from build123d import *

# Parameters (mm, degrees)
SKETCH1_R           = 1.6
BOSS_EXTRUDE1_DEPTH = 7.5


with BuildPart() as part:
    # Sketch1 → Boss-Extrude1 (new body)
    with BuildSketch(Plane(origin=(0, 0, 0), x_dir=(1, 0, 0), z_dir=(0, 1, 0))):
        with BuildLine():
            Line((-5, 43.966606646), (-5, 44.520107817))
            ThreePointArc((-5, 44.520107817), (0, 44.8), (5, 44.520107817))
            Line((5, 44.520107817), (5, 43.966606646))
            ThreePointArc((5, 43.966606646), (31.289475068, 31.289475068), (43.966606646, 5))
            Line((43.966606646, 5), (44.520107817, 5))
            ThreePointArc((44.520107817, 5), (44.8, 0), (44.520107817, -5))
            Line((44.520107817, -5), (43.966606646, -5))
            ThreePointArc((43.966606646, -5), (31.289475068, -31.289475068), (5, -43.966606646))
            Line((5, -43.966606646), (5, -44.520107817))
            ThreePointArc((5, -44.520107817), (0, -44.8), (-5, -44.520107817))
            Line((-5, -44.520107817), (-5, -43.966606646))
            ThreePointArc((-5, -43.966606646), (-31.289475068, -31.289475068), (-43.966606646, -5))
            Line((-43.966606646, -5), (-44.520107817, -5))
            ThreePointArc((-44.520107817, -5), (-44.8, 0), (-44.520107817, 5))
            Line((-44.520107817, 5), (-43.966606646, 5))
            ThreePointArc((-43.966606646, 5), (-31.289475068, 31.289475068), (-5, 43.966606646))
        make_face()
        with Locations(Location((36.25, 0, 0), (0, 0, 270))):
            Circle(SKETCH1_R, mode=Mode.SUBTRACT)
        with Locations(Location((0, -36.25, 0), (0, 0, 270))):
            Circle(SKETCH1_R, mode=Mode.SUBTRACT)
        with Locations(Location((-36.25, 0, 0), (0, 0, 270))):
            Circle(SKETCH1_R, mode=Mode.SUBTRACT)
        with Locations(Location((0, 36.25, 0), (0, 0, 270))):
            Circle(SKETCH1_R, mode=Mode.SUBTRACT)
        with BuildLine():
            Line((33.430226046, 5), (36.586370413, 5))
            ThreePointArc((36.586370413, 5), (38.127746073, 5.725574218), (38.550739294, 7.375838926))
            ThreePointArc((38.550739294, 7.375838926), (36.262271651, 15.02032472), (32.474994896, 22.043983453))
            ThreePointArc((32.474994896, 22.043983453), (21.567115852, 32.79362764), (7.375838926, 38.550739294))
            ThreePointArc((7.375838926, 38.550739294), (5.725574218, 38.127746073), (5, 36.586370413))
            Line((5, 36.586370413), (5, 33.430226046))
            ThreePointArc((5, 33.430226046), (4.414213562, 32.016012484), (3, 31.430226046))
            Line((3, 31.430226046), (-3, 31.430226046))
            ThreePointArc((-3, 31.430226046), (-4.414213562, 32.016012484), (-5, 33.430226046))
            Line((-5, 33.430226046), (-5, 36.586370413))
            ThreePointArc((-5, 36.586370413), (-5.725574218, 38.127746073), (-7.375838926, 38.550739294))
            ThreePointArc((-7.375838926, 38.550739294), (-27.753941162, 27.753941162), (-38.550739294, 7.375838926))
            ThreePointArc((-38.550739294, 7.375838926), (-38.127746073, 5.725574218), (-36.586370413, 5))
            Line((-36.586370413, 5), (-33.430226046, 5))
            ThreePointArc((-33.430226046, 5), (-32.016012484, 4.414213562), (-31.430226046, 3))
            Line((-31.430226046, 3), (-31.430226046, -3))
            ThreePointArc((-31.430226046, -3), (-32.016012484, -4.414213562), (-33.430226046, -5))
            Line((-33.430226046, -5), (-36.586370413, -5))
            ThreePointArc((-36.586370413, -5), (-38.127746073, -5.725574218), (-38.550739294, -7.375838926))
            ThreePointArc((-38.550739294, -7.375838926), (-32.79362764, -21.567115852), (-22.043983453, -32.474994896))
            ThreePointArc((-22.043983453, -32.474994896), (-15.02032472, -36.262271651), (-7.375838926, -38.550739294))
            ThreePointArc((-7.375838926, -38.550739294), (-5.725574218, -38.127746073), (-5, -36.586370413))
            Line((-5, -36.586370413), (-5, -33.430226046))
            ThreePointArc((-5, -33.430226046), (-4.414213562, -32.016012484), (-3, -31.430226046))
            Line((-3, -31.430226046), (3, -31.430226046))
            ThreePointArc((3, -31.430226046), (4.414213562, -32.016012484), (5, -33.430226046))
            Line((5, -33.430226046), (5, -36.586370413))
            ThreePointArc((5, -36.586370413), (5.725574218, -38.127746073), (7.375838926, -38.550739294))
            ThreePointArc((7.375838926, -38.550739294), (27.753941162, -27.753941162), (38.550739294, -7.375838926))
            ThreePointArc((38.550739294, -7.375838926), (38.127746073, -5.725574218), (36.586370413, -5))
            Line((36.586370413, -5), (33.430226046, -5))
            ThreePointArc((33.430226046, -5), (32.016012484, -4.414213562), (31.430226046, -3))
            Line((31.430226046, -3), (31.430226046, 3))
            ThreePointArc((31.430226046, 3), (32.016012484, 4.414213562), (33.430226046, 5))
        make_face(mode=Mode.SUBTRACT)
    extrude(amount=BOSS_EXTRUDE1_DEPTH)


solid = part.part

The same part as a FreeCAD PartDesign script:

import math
import FreeCAD as App
import Part
import Sketcher

V = App.Vector

doc = App.newDocument("Part")
body = doc.addObject("PartDesign::Body", "Body")

sketch1 = doc.addObject("Sketcher::SketchObject", "Sketch")
body.addObject(sketch1)
sketch1.AttachmentSupport = (doc.XZ_Plane, [""])
sketch1.MapMode = "FlatFace"
sketch1.addGeometry(Part.LineSegment(V(-5, -44.5, 0), V(-5, -44, 0)), False)
sketch1.addGeometry(Part.ArcOfCircle(Part.Circle(V(0, 0, 0), V(0, 0, 1), 44.2), math.radians(-174), math.radians(-96)), False)
sketch1.addGeometry(Part.LineSegment(V(-44, -5, 0), V(-44.5, -5, 0)), False)
sketch1.addGeometry(Part.ArcOfCircle(Part.Circle(V(0, 0, 0), V(0, 0, 1), 44.8), math.radians(173.59), math.radians(186.41)), False)
sketch1.addGeometry(Part.LineSegment(V(-44.5, 5, 0), V(-44, 5, 0)), False)
sketch1.addGeometry(Part.ArcOfCircle(Part.Circle(V(0, 0, 0), V(0, 0, 1), 44.2), math.radians(96), math.radians(174)), False)
sketch1.addGeometry(Part.LineSegment(V(-5, 44, 0), V(-5, 44.5, 0)), False)
sketch1.addGeometry(Part.ArcOfCircle(Part.Circle(V(0, 0, 0), V(0, 0, 1), 44.8), math.radians(83.59), math.radians(96.41)), False)
sketch1.addGeometry(Part.LineSegment(V(5, 44.5, 0), V(5, 44, 0)), False)
sketch1.addGeometry(Part.ArcOfCircle(Part.Circle(V(0, 0, 0), V(0, 0, 1), 44.2), math.radians(6), math.radians(84)), False)
sketch1.addGeometry(Part.LineSegment(V(44, 5, 0), V(44.5, 5, 0)), False)
sketch1.addGeometry(Part.ArcOfCircle(Part.Circle(V(0, 0, 0), V(0, 0, 1), 44.8), math.radians(-6.41), math.radians(6.41)), False)
sketch1.addGeometry(Part.LineSegment(V(44.5, -5, 0), V(44, -5, 0)), False)
sketch1.addGeometry(Part.ArcOfCircle(Part.Circle(V(0, 0, 0), V(0, 0, 1), 44.2), math.radians(-84), math.radians(-6)), False)
sketch1.addGeometry(Part.LineSegment(V(5, -44, 0), V(5, -44.5, 0)), False)
sketch1.addGeometry(Part.ArcOfCircle(Part.Circle(V(0, 0, 0), V(0, 0, 1), 44.8), math.radians(-96.41), math.radians(-83.59)), False)
sketch1.addGeometry(Part.Circle(V(0, 36.2, 0), V(0, 0, 1), 1.6), False)
sketch1.addGeometry(Part.Circle(V(36.2, 0, 0), V(0, 0, 1), 1.6), False)
sketch1.addGeometry(Part.ArcOfCircle(Part.Circle(V(33.4, -3, 0), V(0, 0, 1), 2), math.radians(-180), math.radians(-90)), False)
sketch1.addGeometry(Part.LineSegment(V(31.4, -3, 0), V(31.4, 3, 0)), False)
sketch1.addGeometry(Part.ArcOfCircle(Part.Circle(V(33.4, 3, 0), V(0, 0, 1), 2), math.radians(90), math.radians(180)), False)
sketch1.addGeometry(Part.LineSegment(V(33.4, 5, 0), V(36.6, 5, 0)), False)
sketch1.addGeometry(Part.ArcOfCircle(Part.Circle(V(36.6, 7, 0), V(0, 0, 1), 2), math.radians(-90), math.radians(11)), False)
sketch1.addGeometry(Part.ArcOfCircle(Part.Circle(V(0, 0, 0), V(0, 0, 1), 39.2), math.radians(11), math.radians(79)), False)
sketch1.addGeometry(Part.ArcOfCircle(Part.Circle(V(7, 36.6, 0), V(0, 0, 1), 2), math.radians(79), math.radians(180)), False)
sketch1.addGeometry(Part.LineSegment(V(5, 36.6, 0), V(5, 33.4, 0)), False)
sketch1.addGeometry(Part.ArcOfCircle(Part.Circle(V(3, 33.4, 0), V(0, 0, 1), 2), math.radians(-90), math.radians(0)), False)
sketch1.addGeometry(Part.LineSegment(V(3, 31.4, 0), V(-3, 31.4, 0)), False)
sketch1.addGeometry(Part.ArcOfCircle(Part.Circle(V(-3, 33.4, 0), V(0, 0, 1), 2), math.radians(-180), math.radians(-90)), False)
sketch1.addGeometry(Part.LineSegment(V(-5, 33.4, 0), V(-5, 36.6, 0)), False)
sketch1.addGeometry(Part.ArcOfCircle(Part.Circle(V(-7, 36.6, 0), V(0, 0, 1), 2), math.radians(0), math.radians(101)), False)
sketch1.addGeometry(Part.ArcOfCircle(Part.Circle(V(0, 0, 0), V(0, 0, 1), 39.2), math.radians(101), math.radians(124)), False)
sketch1.addGeometry(Part.ArcOfCircle(Part.Circle(V(0, 0, 0), V(0, 0, 1), 39.3), math.radians(124), math.radians(169)), False)
sketch1.addGeometry(Part.ArcOfCircle(Part.Circle(V(-36.6, 7, 0), V(0, 0, 1), 2), math.radians(169), math.radians(270)), False)
sketch1.addGeometry(Part.LineSegment(V(-36.6, 5, 0), V(-33.4, 5, 0)), False)
sketch1.addGeometry(Part.ArcOfCircle(Part.Circle(V(-33.4, 3, 0), V(0, 0, 1), 2), math.radians(0), math.radians(90)), False)
sketch1.addGeometry(Part.LineSegment(V(-31.4, 3, 0), V(-31.4, -3, 0)), False)
sketch1.addGeometry(Part.ArcOfCircle(Part.Circle(V(-33.4, -3, 0), V(0, 0, 1), 2), math.radians(-90), math.radians(0)), False)
sketch1.addGeometry(Part.LineSegment(V(-33.4, -5, 0), V(-36.6, -5, 0)), False)
sketch1.addGeometry(Part.ArcOfCircle(Part.Circle(V(-36.6, -7, 0), V(0, 0, 1), 2), math.radians(90), math.radians(191)), False)
sketch1.addGeometry(Part.ArcOfCircle(Part.Circle(V(0, 0, 0), V(0, 0, 1), 39.2), math.radians(-169), math.radians(-101)), False)
sketch1.addGeometry(Part.ArcOfCircle(Part.Circle(V(-7, -36.6, 0), V(0, 0, 1), 2), math.radians(-101), math.radians(0)), False)
sketch1.addGeometry(Part.LineSegment(V(-5, -36.6, 0), V(-5, -33.4, 0)), False)
sketch1.addGeometry(Part.ArcOfCircle(Part.Circle(V(-3, -33.4, 0), V(0, 0, 1), 2), math.radians(90), math.radians(180)), False)
sketch1.addGeometry(Part.LineSegment(V(-3, -31.4, 0), V(3, -31.4, 0)), False)
sketch1.addGeometry(Part.ArcOfCircle(Part.Circle(V(3, -33.4, 0), V(0, 0, 1), 2), math.radians(0), math.radians(90)), False)
sketch1.addGeometry(Part.LineSegment(V(5, -33.4, 0), V(5, -36.6, 0)), False)
sketch1.addGeometry(Part.ArcOfCircle(Part.Circle(V(7, -36.6, 0), V(0, 0, 1), 2), math.radians(180), math.radians(281)), False)
sketch1.addGeometry(Part.ArcOfCircle(Part.Circle(V(0, 0, 0), V(0, 0, 1), 39.3), math.radians(-79), math.radians(-34)), False)
sketch1.addGeometry(Part.ArcOfCircle(Part.Circle(V(0, 0, 0), V(0, 0, 1), 39.2), math.radians(-34), math.radians(-11)), False)
sketch1.addGeometry(Part.ArcOfCircle(Part.Circle(V(36.6, -7, 0), V(0, 0, 1), 2), math.radians(-11), math.radians(90)), False)
sketch1.addGeometry(Part.LineSegment(V(36.6, -5, 0), V(33.4, -5, 0)), False)
sketch1.addGeometry(Part.Circle(V(-36.2, 0, 0), V(0, 0, 1), 1.6), False)
sketch1.addGeometry(Part.Circle(V(0, -36.2, 0), V(0, 0, 1), 1.6), False)
sketch1.addConstraint(Sketcher.Constraint("Coincident", 0, 2, 1, 2))
sketch1.addConstraint(Sketcher.Constraint("Coincident", 1, 1, 2, 1))
sketch1.addConstraint(Sketcher.Constraint("Coincident", 2, 2, 3, 2))
sketch1.addConstraint(Sketcher.Constraint("Coincident", 3, 1, 4, 1))
sketch1.addConstraint(Sketcher.Constraint("Coincident", 4, 2, 5, 2))
sketch1.addConstraint(Sketcher.Constraint("Coincident", 5, 1, 6, 1))
sketch1.addConstraint(Sketcher.Constraint("Coincident", 6, 2, 7, 2))
sketch1.addConstraint(Sketcher.Constraint("Coincident", 7, 1, 8, 1))
sketch1.addConstraint(Sketcher.Constraint("Coincident", 8, 2, 9, 2))
sketch1.addConstraint(Sketcher.Constraint("Coincident", 9, 1, 10, 1))
sketch1.addConstraint(Sketcher.Constraint("Coincident", 10, 2, 11, 2))
sketch1.addConstraint(Sketcher.Constraint("Coincident", 11, 1, 12, 1))
sketch1.addConstraint(Sketcher.Constraint("Coincident", 12, 2, 13, 2))
sketch1.addConstraint(Sketcher.Constraint("Coincident", 13, 1, 14, 1))
sketch1.addConstraint(Sketcher.Constraint("Coincident", 14, 2, 15, 2))
sketch1.addConstraint(Sketcher.Constraint("Coincident", 15, 1, 0, 1))
sketch1.addConstraint(Sketcher.Constraint("Tangent", 18, 1, 19, 1))
sketch1.addConstraint(Sketcher.Constraint("Tangent", 19, 2, 20, 2))
sketch1.addConstraint(Sketcher.Constraint("Tangent", 20, 1, 21, 1))
sketch1.addConstraint(Sketcher.Constraint("Tangent", 21, 2, 22, 1))
sketch1.addConstraint(Sketcher.Constraint("Tangent", 22, 2, 23, 1))
sketch1.addConstraint(Sketcher.Constraint("Tangent", 23, 2, 24, 1))
sketch1.addConstraint(Sketcher.Constraint("Tangent", 24, 2, 25, 1))
sketch1.addConstraint(Sketcher.Constraint("Tangent", 25, 2, 26, 2))
sketch1.addConstraint(Sketcher.Constraint("Tangent", 26, 1, 27, 1))
sketch1.addConstraint(Sketcher.Constraint("Tangent", 27, 2, 28, 2))
sketch1.addConstraint(Sketcher.Constraint("Tangent", 28, 1, 29, 1))
sketch1.addConstraint(Sketcher.Constraint("Tangent", 29, 2, 30, 1))
sketch1.addConstraint(Sketcher.Constraint("Tangent", 30, 2, 31, 1))
sketch1.addConstraint(Sketcher.Constraint("Tangent", 31, 2, 32, 1))
sketch1.addConstraint(Sketcher.Constraint("Tangent", 32, 2, 33, 1))
sketch1.addConstraint(Sketcher.Constraint("Tangent", 33, 2, 34, 1))
sketch1.addConstraint(Sketcher.Constraint("Tangent", 34, 2, 35, 2))
sketch1.addConstraint(Sketcher.Constraint("Tangent", 35, 1, 36, 1))
sketch1.addConstraint(Sketcher.Constraint("Tangent", 36, 2, 37, 2))
sketch1.addConstraint(Sketcher.Constraint("Tangent", 37, 1, 38, 1))
sketch1.addConstraint(Sketcher.Constraint("Tangent", 38, 2, 39, 1))
sketch1.addConstraint(Sketcher.Constraint("Tangent", 39, 2, 40, 1))
sketch1.addConstraint(Sketcher.Constraint("Tangent", 40, 2, 41, 1))
sketch1.addConstraint(Sketcher.Constraint("Tangent", 41, 2, 42, 1))
sketch1.addConstraint(Sketcher.Constraint("Tangent", 42, 2, 43, 2))
sketch1.addConstraint(Sketcher.Constraint("Tangent", 43, 1, 44, 1))
sketch1.addConstraint(Sketcher.Constraint("Tangent", 44, 2, 45, 2))
sketch1.addConstraint(Sketcher.Constraint("Tangent", 45, 1, 46, 1))
sketch1.addConstraint(Sketcher.Constraint("Tangent", 46, 2, 47, 1))
sketch1.addConstraint(Sketcher.Constraint("Tangent", 47, 2, 48, 1))
sketch1.addConstraint(Sketcher.Constraint("Tangent", 48, 2, 49, 1))
sketch1.addConstraint(Sketcher.Constraint("Tangent", 49, 2, 50, 1))
sketch1.addConstraint(Sketcher.Constraint("Tangent", 50, 2, 51, 1))
sketch1.addConstraint(Sketcher.Constraint("Tangent", 51, 2, 18, 2))
sketch1.addConstraint(Sketcher.Constraint("Vertical", 0))
sketch1.addConstraint(Sketcher.Constraint("Horizontal", 2))
sketch1.addConstraint(Sketcher.Constraint("Horizontal", 4))
sketch1.addConstraint(Sketcher.Constraint("Vertical", 6))
sketch1.addConstraint(Sketcher.Constraint("Vertical", 8))
sketch1.addConstraint(Sketcher.Constraint("Horizontal", 10))
sketch1.addConstraint(Sketcher.Constraint("Horizontal", 12))
sketch1.addConstraint(Sketcher.Constraint("Vertical", 14))
sketch1.addConstraint(Sketcher.Constraint("Vertical", 19))
sketch1.addConstraint(Sketcher.Constraint("Horizontal", 21))
sketch1.addConstraint(Sketcher.Constraint("Vertical", 25))
sketch1.addConstraint(Sketcher.Constraint("Horizontal", 27))
sketch1.addConstraint(Sketcher.Constraint("Vertical", 29))
sketch1.addConstraint(Sketcher.Constraint("Horizontal", 34))
sketch1.addConstraint(Sketcher.Constraint("Vertical", 36))
sketch1.addConstraint(Sketcher.Constraint("Horizontal", 38))
sketch1.addConstraint(Sketcher.Constraint("Vertical", 42))
sketch1.addConstraint(Sketcher.Constraint("Horizontal", 44))
sketch1.addConstraint(Sketcher.Constraint("Vertical", 46))
sketch1.addConstraint(Sketcher.Constraint("Horizontal", 51))
sketch1.addConstraint(Sketcher.Constraint("Coincident", 1, 3, -1, 1))
sketch1.addConstraint(Sketcher.Constraint("Coincident", 3, 3, -1, 1))
sketch1.addConstraint(Sketcher.Constraint("Coincident", 5, 3, -1, 1))
sketch1.addConstraint(Sketcher.Constraint("Coincident", 7, 3, -1, 1))
sketch1.addConstraint(Sketcher.Constraint("Coincident", 9, 3, -1, 1))
sketch1.addConstraint(Sketcher.Constraint("Coincident", 11, 3, -1, 1))
sketch1.addConstraint(Sketcher.Constraint("Coincident", 13, 3, -1, 1))
sketch1.addConstraint(Sketcher.Constraint("Coincident", 15, 3, -1, 1))
sketch1.addConstraint(Sketcher.Constraint("Coincident", 23, 3, -1, 1))
sketch1.addConstraint(Sketcher.Constraint("Coincident", 31, 3, -1, 1))
sketch1.addConstraint(Sketcher.Constraint("Coincident", 40, 3, -1, 1))
sketch1.addConstraint(Sketcher.Constraint("Coincident", 48, 3, -1, 1))
sketch1.addConstraint(Sketcher.Constraint("Equal", 1, 5))
sketch1.addConstraint(Sketcher.Constraint("Equal", 3, 7))
sketch1.addConstraint(Sketcher.Constraint("Equal", 5, 9))
sketch1.addConstraint(Sketcher.Constraint("Equal", 7, 11))
sketch1.addConstraint(Sketcher.Constraint("Equal", 9, 13))
sketch1.addConstraint(Sketcher.Constraint("Equal", 11, 15))
sketch1.addConstraint(Sketcher.Constraint("Equal", 16, 17))
sketch1.addConstraint(Sketcher.Constraint("Equal", 18, 20))
sketch1.addConstraint(Sketcher.Constraint("Equal", 20, 22))
sketch1.addConstraint(Sketcher.Constraint("Equal", 22, 24))
sketch1.addConstraint(Sketcher.Constraint("Equal", 24, 26))
sketch1.addConstraint(Sketcher.Constraint("Equal", 26, 28))
sketch1.addConstraint(Sketcher.Constraint("Equal", 28, 30))
sketch1.addConstraint(Sketcher.Constraint("Equal", 23, 31))
sketch1.addConstraint(Sketcher.Constraint("Equal", 31, 32))
sketch1.addConstraint(Sketcher.Constraint("Equal", 30, 33))
sketch1.addConstraint(Sketcher.Constraint("Equal", 33, 35))
sketch1.addConstraint(Sketcher.Constraint("Equal", 35, 37))
sketch1.addConstraint(Sketcher.Constraint("Equal", 37, 39))
sketch1.addConstraint(Sketcher.Constraint("Equal", 32, 40))
sketch1.addConstraint(Sketcher.Constraint("Equal", 39, 41))
sketch1.addConstraint(Sketcher.Constraint("Equal", 41, 43))
sketch1.addConstraint(Sketcher.Constraint("Equal", 43, 45))
sketch1.addConstraint(Sketcher.Constraint("Equal", 45, 47))
sketch1.addConstraint(Sketcher.Constraint("Equal", 40, 48))
sketch1.addConstraint(Sketcher.Constraint("Equal", 48, 49))
sketch1.addConstraint(Sketcher.Constraint("Equal", 47, 50))
sketch1.addConstraint(Sketcher.Constraint("Equal", 17, 52))
sketch1.addConstraint(Sketcher.Constraint("Equal", 52, 53))
sketch1.addConstraint(Sketcher.Constraint("Symmetric", 18, 3, 35, 3, -1, 1))
sketch1.addConstraint(Sketcher.Constraint("Symmetric", 26, 3, 43, 3, -1, 1))
sketch1.addConstraint(Sketcher.Constraint("Symmetric", 17, 3, 52, 3, -1, 1))
sketch1.addConstraint(Sketcher.Constraint("Symmetric", 16, 3, 53, 3, -1, 1))
sketch1.addConstraint(Sketcher.Constraint("PointOnObject", 16, 3, -2))
sketch1.addConstraint(Sketcher.Constraint("PointOnObject", 17, 3, -1))
sketch1.addConstraint(Sketcher.Constraint("Horizontal", 24, 3, 30, 3))
sketch1.addConstraint(Sketcher.Constraint("Horizontal", 22, 3, 33, 3))
sketch1.addConstraint(Sketcher.Constraint("Horizontal", 18, 3, 37, 3))
sketch1.addConstraint(Sketcher.Constraint("Horizontal", 41, 3, 47, 3))
sketch1.addConstraint(Sketcher.Constraint("Horizontal", 6, 2, 7, 1))
sketch1.addConstraint(Sketcher.Constraint("Horizontal", 4, 2, 9, 1))
sketch1.addConstraint(Sketcher.Constraint("Horizontal", 2, 2, 11, 1))
sketch1.addConstraint(Sketcher.Constraint("Horizontal", 0, 2, 13, 1))
sketch1.addConstraint(Sketcher.Constraint("Horizontal", 10, 2, 20, 1))
sketch1.addConstraint(Sketcher.Constraint("Horizontal", 12, 2, 37, 1))
sketch1.addConstraint(Sketcher.Constraint("Vertical", 0, 2, 5, 1))
sketch1.addConstraint(Sketcher.Constraint("Vertical", 14, 2, 24, 2))
sketch1.addConstraint(Sketcher.Constraint("Equal", 44, 19))
sketch1.addConstraint(Sketcher.Constraint("Equal", 51, 25))
sketch1.addConstraint(Sketcher.Constraint("Radius", 18, 2.0))
sketch1.addConstraint(Sketcher.Constraint("Diameter", 16, 3.2))
sketch1.addConstraint(Sketcher.Constraint("Radius", 3, 44.8))
sketch1.addConstraint(Sketcher.Constraint("DistanceX", 27, 2, 27, 1, 6.0))
sketch1.addConstraint(Sketcher.Constraint("Radius", 1, 44.25))
sketch1.addConstraint(Sketcher.Constraint("Radius", 23, 39.25))
sketch1.addConstraint(Sketcher.Constraint("DistanceY", -1, 1, 16, 3, 36.25))
sketch1.addConstraint(Sketcher.Constraint("DistanceX", -1, 1, 17, 3, 36.25))
sketch1.addConstraint(Sketcher.Constraint("DistanceX", 21, 1, 21, 2, 3.156144))
sketch1.addConstraint(Sketcher.Constraint("DistanceX", 31, 2, -1, 1, 22.043983))
sketch1.addConstraint(Sketcher.Constraint("DistanceX", -1, 1, 48, 2, 32.474995))
pad1 = doc.addObject("PartDesign::Pad", "Pad")
body.addObject(pad1)
pad1.Profile = sketch1
pad1.Length = 7.5
pad1.Reversed = True

doc.recompute()
